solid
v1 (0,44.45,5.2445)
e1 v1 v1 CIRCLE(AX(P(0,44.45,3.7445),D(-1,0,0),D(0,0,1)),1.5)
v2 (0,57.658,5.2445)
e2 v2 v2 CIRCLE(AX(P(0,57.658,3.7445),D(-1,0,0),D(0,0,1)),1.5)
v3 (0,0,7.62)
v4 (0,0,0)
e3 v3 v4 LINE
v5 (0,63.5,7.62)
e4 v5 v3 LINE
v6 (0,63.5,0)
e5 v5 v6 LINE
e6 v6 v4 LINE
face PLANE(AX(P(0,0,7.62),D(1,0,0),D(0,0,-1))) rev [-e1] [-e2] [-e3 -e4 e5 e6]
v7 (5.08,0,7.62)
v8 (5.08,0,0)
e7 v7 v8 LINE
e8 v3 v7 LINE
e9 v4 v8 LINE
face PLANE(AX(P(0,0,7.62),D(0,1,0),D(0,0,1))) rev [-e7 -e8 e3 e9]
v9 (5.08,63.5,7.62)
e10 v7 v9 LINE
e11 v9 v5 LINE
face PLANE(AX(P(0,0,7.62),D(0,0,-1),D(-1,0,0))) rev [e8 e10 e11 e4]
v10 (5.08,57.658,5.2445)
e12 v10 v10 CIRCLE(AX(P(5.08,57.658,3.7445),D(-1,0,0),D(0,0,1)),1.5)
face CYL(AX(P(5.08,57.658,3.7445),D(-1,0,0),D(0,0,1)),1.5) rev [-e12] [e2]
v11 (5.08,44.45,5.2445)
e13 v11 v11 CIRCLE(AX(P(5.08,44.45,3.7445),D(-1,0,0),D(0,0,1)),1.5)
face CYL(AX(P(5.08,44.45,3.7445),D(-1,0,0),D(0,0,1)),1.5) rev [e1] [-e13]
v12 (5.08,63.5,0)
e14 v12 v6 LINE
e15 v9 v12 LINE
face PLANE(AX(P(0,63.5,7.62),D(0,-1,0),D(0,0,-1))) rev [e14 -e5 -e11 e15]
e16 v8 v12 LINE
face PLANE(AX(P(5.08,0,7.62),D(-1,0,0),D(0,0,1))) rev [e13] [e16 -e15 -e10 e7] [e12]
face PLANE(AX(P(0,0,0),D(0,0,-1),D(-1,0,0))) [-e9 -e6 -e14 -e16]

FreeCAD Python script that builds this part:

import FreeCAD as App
import Part
import Sketcher
Q = App.Units.Quantity

doc = App.newDocument("Part")
body = doc.addObject("PartDesign::Body", "Body")

sketch1 = doc.addObject("Sketcher::SketchObject", "Sketch")
body.addObject(sketch1)
sketch1.AttachmentSupport = (doc.XY_Plane, [""])
sketch1.MapMode = "FlatFace"
sketch1.addGeometry(Part.LineSegment(App.Vector(0, 64, 0), App.Vector(0, 0, 0)), False)
sketch1.addGeometry(Part.LineSegment(App.Vector(0, 0, 0), App.Vector(5, 0, 0)), False)
sketch1.addGeometry(Part.LineSegment(App.Vector(5, 0, 0), App.Vector(5, 64, 0)), False)
sketch1.addGeometry(Part.LineSegment(App.Vector(5, 64, 0), App.Vector(0, 64, 0)), False)
sketch1.addConstraint(Sketcher.Constraint("Coincident", 0, 2, 1, 1))
sketch1.addConstraint(Sketcher.Constraint("Coincident", 1, 2, 2, 1))
sketch1.addConstraint(Sketcher.Constraint("Coincident", 2, 2, 3, 1))
sketch1.addConstraint(Sketcher.Constraint("Coincident", 3, 2, 0, 1))
sketch1.addConstraint(Sketcher.Constraint("Vertical", 0))
sketch1.addConstraint(Sketcher.Constraint("Horizontal", 1))
sketch1.addConstraint(Sketcher.Constraint("Vertical", 2))
sketch1.addConstraint(Sketcher.Constraint("Horizontal", 3))
sketch1.addConstraint(Sketcher.Constraint("Coincident", 0, 2, -1, 1))
sketch1.addConstraint(Sketcher.Constraint("DistanceX", 1, 1, 1, 2, Q("0.2 in")))
sketch1.addConstraint(Sketcher.Constraint("DistanceY", 0, 2, 0, 1, Q("2.5 in")))
pad1 = doc.addObject("PartDesign::Pad", "Pad")
body.addObject(pad1)
pad1.Profile = sketch1
pad1.Length = Q("0.3 in")

sketch2 = doc.addObject("Sketcher::SketchObject", "Sketch001")
body.addObject(sketch2)
sketch2.AttachmentSupport = (doc.YZ_Plane, [""])
sketch2.MapMode = "FlatFace"
sketch2.addGeometry(Part.Circle(App.Vector(57.7, 3.7, 0), App.Vector(0, 0, 1), 1.5), False)
sketch2.addGeometry(Part.Circle(App.Vector(44.5, 3.7, 0), App.Vector(0, 0, 1), 1.5), False)
sketch2.addConstraint(Sketcher.Constraint("Equal", 0, 1))
sketch2.addConstraint(Sketcher.Constraint("Horizontal", 0, 3, 1, 3))
sketch2.addConstraint(Sketcher.Constraint("Diameter", 0, 3.0))
sketch2.addConstraint(Sketcher.Constraint("DistanceX", -1, 1, 0, 3, Q("2.27 in")))
sketch2.addConstraint(Sketcher.Constraint("DistanceX", -1, 1, 1, 3, Q("1.75 in")))
sketch2.addConstraint(Sketcher.Constraint("DistanceY", -1, 1, 0, 3, 3.7445))
pocket1 = doc.addObject("PartDesign::Pocket", "Pocket")
body.addObject(pocket1)
pocket1.Profile = sketch2
pocket1.Type = "ThroughAll"
pocket1.Reversed = True

doc.recompute()
